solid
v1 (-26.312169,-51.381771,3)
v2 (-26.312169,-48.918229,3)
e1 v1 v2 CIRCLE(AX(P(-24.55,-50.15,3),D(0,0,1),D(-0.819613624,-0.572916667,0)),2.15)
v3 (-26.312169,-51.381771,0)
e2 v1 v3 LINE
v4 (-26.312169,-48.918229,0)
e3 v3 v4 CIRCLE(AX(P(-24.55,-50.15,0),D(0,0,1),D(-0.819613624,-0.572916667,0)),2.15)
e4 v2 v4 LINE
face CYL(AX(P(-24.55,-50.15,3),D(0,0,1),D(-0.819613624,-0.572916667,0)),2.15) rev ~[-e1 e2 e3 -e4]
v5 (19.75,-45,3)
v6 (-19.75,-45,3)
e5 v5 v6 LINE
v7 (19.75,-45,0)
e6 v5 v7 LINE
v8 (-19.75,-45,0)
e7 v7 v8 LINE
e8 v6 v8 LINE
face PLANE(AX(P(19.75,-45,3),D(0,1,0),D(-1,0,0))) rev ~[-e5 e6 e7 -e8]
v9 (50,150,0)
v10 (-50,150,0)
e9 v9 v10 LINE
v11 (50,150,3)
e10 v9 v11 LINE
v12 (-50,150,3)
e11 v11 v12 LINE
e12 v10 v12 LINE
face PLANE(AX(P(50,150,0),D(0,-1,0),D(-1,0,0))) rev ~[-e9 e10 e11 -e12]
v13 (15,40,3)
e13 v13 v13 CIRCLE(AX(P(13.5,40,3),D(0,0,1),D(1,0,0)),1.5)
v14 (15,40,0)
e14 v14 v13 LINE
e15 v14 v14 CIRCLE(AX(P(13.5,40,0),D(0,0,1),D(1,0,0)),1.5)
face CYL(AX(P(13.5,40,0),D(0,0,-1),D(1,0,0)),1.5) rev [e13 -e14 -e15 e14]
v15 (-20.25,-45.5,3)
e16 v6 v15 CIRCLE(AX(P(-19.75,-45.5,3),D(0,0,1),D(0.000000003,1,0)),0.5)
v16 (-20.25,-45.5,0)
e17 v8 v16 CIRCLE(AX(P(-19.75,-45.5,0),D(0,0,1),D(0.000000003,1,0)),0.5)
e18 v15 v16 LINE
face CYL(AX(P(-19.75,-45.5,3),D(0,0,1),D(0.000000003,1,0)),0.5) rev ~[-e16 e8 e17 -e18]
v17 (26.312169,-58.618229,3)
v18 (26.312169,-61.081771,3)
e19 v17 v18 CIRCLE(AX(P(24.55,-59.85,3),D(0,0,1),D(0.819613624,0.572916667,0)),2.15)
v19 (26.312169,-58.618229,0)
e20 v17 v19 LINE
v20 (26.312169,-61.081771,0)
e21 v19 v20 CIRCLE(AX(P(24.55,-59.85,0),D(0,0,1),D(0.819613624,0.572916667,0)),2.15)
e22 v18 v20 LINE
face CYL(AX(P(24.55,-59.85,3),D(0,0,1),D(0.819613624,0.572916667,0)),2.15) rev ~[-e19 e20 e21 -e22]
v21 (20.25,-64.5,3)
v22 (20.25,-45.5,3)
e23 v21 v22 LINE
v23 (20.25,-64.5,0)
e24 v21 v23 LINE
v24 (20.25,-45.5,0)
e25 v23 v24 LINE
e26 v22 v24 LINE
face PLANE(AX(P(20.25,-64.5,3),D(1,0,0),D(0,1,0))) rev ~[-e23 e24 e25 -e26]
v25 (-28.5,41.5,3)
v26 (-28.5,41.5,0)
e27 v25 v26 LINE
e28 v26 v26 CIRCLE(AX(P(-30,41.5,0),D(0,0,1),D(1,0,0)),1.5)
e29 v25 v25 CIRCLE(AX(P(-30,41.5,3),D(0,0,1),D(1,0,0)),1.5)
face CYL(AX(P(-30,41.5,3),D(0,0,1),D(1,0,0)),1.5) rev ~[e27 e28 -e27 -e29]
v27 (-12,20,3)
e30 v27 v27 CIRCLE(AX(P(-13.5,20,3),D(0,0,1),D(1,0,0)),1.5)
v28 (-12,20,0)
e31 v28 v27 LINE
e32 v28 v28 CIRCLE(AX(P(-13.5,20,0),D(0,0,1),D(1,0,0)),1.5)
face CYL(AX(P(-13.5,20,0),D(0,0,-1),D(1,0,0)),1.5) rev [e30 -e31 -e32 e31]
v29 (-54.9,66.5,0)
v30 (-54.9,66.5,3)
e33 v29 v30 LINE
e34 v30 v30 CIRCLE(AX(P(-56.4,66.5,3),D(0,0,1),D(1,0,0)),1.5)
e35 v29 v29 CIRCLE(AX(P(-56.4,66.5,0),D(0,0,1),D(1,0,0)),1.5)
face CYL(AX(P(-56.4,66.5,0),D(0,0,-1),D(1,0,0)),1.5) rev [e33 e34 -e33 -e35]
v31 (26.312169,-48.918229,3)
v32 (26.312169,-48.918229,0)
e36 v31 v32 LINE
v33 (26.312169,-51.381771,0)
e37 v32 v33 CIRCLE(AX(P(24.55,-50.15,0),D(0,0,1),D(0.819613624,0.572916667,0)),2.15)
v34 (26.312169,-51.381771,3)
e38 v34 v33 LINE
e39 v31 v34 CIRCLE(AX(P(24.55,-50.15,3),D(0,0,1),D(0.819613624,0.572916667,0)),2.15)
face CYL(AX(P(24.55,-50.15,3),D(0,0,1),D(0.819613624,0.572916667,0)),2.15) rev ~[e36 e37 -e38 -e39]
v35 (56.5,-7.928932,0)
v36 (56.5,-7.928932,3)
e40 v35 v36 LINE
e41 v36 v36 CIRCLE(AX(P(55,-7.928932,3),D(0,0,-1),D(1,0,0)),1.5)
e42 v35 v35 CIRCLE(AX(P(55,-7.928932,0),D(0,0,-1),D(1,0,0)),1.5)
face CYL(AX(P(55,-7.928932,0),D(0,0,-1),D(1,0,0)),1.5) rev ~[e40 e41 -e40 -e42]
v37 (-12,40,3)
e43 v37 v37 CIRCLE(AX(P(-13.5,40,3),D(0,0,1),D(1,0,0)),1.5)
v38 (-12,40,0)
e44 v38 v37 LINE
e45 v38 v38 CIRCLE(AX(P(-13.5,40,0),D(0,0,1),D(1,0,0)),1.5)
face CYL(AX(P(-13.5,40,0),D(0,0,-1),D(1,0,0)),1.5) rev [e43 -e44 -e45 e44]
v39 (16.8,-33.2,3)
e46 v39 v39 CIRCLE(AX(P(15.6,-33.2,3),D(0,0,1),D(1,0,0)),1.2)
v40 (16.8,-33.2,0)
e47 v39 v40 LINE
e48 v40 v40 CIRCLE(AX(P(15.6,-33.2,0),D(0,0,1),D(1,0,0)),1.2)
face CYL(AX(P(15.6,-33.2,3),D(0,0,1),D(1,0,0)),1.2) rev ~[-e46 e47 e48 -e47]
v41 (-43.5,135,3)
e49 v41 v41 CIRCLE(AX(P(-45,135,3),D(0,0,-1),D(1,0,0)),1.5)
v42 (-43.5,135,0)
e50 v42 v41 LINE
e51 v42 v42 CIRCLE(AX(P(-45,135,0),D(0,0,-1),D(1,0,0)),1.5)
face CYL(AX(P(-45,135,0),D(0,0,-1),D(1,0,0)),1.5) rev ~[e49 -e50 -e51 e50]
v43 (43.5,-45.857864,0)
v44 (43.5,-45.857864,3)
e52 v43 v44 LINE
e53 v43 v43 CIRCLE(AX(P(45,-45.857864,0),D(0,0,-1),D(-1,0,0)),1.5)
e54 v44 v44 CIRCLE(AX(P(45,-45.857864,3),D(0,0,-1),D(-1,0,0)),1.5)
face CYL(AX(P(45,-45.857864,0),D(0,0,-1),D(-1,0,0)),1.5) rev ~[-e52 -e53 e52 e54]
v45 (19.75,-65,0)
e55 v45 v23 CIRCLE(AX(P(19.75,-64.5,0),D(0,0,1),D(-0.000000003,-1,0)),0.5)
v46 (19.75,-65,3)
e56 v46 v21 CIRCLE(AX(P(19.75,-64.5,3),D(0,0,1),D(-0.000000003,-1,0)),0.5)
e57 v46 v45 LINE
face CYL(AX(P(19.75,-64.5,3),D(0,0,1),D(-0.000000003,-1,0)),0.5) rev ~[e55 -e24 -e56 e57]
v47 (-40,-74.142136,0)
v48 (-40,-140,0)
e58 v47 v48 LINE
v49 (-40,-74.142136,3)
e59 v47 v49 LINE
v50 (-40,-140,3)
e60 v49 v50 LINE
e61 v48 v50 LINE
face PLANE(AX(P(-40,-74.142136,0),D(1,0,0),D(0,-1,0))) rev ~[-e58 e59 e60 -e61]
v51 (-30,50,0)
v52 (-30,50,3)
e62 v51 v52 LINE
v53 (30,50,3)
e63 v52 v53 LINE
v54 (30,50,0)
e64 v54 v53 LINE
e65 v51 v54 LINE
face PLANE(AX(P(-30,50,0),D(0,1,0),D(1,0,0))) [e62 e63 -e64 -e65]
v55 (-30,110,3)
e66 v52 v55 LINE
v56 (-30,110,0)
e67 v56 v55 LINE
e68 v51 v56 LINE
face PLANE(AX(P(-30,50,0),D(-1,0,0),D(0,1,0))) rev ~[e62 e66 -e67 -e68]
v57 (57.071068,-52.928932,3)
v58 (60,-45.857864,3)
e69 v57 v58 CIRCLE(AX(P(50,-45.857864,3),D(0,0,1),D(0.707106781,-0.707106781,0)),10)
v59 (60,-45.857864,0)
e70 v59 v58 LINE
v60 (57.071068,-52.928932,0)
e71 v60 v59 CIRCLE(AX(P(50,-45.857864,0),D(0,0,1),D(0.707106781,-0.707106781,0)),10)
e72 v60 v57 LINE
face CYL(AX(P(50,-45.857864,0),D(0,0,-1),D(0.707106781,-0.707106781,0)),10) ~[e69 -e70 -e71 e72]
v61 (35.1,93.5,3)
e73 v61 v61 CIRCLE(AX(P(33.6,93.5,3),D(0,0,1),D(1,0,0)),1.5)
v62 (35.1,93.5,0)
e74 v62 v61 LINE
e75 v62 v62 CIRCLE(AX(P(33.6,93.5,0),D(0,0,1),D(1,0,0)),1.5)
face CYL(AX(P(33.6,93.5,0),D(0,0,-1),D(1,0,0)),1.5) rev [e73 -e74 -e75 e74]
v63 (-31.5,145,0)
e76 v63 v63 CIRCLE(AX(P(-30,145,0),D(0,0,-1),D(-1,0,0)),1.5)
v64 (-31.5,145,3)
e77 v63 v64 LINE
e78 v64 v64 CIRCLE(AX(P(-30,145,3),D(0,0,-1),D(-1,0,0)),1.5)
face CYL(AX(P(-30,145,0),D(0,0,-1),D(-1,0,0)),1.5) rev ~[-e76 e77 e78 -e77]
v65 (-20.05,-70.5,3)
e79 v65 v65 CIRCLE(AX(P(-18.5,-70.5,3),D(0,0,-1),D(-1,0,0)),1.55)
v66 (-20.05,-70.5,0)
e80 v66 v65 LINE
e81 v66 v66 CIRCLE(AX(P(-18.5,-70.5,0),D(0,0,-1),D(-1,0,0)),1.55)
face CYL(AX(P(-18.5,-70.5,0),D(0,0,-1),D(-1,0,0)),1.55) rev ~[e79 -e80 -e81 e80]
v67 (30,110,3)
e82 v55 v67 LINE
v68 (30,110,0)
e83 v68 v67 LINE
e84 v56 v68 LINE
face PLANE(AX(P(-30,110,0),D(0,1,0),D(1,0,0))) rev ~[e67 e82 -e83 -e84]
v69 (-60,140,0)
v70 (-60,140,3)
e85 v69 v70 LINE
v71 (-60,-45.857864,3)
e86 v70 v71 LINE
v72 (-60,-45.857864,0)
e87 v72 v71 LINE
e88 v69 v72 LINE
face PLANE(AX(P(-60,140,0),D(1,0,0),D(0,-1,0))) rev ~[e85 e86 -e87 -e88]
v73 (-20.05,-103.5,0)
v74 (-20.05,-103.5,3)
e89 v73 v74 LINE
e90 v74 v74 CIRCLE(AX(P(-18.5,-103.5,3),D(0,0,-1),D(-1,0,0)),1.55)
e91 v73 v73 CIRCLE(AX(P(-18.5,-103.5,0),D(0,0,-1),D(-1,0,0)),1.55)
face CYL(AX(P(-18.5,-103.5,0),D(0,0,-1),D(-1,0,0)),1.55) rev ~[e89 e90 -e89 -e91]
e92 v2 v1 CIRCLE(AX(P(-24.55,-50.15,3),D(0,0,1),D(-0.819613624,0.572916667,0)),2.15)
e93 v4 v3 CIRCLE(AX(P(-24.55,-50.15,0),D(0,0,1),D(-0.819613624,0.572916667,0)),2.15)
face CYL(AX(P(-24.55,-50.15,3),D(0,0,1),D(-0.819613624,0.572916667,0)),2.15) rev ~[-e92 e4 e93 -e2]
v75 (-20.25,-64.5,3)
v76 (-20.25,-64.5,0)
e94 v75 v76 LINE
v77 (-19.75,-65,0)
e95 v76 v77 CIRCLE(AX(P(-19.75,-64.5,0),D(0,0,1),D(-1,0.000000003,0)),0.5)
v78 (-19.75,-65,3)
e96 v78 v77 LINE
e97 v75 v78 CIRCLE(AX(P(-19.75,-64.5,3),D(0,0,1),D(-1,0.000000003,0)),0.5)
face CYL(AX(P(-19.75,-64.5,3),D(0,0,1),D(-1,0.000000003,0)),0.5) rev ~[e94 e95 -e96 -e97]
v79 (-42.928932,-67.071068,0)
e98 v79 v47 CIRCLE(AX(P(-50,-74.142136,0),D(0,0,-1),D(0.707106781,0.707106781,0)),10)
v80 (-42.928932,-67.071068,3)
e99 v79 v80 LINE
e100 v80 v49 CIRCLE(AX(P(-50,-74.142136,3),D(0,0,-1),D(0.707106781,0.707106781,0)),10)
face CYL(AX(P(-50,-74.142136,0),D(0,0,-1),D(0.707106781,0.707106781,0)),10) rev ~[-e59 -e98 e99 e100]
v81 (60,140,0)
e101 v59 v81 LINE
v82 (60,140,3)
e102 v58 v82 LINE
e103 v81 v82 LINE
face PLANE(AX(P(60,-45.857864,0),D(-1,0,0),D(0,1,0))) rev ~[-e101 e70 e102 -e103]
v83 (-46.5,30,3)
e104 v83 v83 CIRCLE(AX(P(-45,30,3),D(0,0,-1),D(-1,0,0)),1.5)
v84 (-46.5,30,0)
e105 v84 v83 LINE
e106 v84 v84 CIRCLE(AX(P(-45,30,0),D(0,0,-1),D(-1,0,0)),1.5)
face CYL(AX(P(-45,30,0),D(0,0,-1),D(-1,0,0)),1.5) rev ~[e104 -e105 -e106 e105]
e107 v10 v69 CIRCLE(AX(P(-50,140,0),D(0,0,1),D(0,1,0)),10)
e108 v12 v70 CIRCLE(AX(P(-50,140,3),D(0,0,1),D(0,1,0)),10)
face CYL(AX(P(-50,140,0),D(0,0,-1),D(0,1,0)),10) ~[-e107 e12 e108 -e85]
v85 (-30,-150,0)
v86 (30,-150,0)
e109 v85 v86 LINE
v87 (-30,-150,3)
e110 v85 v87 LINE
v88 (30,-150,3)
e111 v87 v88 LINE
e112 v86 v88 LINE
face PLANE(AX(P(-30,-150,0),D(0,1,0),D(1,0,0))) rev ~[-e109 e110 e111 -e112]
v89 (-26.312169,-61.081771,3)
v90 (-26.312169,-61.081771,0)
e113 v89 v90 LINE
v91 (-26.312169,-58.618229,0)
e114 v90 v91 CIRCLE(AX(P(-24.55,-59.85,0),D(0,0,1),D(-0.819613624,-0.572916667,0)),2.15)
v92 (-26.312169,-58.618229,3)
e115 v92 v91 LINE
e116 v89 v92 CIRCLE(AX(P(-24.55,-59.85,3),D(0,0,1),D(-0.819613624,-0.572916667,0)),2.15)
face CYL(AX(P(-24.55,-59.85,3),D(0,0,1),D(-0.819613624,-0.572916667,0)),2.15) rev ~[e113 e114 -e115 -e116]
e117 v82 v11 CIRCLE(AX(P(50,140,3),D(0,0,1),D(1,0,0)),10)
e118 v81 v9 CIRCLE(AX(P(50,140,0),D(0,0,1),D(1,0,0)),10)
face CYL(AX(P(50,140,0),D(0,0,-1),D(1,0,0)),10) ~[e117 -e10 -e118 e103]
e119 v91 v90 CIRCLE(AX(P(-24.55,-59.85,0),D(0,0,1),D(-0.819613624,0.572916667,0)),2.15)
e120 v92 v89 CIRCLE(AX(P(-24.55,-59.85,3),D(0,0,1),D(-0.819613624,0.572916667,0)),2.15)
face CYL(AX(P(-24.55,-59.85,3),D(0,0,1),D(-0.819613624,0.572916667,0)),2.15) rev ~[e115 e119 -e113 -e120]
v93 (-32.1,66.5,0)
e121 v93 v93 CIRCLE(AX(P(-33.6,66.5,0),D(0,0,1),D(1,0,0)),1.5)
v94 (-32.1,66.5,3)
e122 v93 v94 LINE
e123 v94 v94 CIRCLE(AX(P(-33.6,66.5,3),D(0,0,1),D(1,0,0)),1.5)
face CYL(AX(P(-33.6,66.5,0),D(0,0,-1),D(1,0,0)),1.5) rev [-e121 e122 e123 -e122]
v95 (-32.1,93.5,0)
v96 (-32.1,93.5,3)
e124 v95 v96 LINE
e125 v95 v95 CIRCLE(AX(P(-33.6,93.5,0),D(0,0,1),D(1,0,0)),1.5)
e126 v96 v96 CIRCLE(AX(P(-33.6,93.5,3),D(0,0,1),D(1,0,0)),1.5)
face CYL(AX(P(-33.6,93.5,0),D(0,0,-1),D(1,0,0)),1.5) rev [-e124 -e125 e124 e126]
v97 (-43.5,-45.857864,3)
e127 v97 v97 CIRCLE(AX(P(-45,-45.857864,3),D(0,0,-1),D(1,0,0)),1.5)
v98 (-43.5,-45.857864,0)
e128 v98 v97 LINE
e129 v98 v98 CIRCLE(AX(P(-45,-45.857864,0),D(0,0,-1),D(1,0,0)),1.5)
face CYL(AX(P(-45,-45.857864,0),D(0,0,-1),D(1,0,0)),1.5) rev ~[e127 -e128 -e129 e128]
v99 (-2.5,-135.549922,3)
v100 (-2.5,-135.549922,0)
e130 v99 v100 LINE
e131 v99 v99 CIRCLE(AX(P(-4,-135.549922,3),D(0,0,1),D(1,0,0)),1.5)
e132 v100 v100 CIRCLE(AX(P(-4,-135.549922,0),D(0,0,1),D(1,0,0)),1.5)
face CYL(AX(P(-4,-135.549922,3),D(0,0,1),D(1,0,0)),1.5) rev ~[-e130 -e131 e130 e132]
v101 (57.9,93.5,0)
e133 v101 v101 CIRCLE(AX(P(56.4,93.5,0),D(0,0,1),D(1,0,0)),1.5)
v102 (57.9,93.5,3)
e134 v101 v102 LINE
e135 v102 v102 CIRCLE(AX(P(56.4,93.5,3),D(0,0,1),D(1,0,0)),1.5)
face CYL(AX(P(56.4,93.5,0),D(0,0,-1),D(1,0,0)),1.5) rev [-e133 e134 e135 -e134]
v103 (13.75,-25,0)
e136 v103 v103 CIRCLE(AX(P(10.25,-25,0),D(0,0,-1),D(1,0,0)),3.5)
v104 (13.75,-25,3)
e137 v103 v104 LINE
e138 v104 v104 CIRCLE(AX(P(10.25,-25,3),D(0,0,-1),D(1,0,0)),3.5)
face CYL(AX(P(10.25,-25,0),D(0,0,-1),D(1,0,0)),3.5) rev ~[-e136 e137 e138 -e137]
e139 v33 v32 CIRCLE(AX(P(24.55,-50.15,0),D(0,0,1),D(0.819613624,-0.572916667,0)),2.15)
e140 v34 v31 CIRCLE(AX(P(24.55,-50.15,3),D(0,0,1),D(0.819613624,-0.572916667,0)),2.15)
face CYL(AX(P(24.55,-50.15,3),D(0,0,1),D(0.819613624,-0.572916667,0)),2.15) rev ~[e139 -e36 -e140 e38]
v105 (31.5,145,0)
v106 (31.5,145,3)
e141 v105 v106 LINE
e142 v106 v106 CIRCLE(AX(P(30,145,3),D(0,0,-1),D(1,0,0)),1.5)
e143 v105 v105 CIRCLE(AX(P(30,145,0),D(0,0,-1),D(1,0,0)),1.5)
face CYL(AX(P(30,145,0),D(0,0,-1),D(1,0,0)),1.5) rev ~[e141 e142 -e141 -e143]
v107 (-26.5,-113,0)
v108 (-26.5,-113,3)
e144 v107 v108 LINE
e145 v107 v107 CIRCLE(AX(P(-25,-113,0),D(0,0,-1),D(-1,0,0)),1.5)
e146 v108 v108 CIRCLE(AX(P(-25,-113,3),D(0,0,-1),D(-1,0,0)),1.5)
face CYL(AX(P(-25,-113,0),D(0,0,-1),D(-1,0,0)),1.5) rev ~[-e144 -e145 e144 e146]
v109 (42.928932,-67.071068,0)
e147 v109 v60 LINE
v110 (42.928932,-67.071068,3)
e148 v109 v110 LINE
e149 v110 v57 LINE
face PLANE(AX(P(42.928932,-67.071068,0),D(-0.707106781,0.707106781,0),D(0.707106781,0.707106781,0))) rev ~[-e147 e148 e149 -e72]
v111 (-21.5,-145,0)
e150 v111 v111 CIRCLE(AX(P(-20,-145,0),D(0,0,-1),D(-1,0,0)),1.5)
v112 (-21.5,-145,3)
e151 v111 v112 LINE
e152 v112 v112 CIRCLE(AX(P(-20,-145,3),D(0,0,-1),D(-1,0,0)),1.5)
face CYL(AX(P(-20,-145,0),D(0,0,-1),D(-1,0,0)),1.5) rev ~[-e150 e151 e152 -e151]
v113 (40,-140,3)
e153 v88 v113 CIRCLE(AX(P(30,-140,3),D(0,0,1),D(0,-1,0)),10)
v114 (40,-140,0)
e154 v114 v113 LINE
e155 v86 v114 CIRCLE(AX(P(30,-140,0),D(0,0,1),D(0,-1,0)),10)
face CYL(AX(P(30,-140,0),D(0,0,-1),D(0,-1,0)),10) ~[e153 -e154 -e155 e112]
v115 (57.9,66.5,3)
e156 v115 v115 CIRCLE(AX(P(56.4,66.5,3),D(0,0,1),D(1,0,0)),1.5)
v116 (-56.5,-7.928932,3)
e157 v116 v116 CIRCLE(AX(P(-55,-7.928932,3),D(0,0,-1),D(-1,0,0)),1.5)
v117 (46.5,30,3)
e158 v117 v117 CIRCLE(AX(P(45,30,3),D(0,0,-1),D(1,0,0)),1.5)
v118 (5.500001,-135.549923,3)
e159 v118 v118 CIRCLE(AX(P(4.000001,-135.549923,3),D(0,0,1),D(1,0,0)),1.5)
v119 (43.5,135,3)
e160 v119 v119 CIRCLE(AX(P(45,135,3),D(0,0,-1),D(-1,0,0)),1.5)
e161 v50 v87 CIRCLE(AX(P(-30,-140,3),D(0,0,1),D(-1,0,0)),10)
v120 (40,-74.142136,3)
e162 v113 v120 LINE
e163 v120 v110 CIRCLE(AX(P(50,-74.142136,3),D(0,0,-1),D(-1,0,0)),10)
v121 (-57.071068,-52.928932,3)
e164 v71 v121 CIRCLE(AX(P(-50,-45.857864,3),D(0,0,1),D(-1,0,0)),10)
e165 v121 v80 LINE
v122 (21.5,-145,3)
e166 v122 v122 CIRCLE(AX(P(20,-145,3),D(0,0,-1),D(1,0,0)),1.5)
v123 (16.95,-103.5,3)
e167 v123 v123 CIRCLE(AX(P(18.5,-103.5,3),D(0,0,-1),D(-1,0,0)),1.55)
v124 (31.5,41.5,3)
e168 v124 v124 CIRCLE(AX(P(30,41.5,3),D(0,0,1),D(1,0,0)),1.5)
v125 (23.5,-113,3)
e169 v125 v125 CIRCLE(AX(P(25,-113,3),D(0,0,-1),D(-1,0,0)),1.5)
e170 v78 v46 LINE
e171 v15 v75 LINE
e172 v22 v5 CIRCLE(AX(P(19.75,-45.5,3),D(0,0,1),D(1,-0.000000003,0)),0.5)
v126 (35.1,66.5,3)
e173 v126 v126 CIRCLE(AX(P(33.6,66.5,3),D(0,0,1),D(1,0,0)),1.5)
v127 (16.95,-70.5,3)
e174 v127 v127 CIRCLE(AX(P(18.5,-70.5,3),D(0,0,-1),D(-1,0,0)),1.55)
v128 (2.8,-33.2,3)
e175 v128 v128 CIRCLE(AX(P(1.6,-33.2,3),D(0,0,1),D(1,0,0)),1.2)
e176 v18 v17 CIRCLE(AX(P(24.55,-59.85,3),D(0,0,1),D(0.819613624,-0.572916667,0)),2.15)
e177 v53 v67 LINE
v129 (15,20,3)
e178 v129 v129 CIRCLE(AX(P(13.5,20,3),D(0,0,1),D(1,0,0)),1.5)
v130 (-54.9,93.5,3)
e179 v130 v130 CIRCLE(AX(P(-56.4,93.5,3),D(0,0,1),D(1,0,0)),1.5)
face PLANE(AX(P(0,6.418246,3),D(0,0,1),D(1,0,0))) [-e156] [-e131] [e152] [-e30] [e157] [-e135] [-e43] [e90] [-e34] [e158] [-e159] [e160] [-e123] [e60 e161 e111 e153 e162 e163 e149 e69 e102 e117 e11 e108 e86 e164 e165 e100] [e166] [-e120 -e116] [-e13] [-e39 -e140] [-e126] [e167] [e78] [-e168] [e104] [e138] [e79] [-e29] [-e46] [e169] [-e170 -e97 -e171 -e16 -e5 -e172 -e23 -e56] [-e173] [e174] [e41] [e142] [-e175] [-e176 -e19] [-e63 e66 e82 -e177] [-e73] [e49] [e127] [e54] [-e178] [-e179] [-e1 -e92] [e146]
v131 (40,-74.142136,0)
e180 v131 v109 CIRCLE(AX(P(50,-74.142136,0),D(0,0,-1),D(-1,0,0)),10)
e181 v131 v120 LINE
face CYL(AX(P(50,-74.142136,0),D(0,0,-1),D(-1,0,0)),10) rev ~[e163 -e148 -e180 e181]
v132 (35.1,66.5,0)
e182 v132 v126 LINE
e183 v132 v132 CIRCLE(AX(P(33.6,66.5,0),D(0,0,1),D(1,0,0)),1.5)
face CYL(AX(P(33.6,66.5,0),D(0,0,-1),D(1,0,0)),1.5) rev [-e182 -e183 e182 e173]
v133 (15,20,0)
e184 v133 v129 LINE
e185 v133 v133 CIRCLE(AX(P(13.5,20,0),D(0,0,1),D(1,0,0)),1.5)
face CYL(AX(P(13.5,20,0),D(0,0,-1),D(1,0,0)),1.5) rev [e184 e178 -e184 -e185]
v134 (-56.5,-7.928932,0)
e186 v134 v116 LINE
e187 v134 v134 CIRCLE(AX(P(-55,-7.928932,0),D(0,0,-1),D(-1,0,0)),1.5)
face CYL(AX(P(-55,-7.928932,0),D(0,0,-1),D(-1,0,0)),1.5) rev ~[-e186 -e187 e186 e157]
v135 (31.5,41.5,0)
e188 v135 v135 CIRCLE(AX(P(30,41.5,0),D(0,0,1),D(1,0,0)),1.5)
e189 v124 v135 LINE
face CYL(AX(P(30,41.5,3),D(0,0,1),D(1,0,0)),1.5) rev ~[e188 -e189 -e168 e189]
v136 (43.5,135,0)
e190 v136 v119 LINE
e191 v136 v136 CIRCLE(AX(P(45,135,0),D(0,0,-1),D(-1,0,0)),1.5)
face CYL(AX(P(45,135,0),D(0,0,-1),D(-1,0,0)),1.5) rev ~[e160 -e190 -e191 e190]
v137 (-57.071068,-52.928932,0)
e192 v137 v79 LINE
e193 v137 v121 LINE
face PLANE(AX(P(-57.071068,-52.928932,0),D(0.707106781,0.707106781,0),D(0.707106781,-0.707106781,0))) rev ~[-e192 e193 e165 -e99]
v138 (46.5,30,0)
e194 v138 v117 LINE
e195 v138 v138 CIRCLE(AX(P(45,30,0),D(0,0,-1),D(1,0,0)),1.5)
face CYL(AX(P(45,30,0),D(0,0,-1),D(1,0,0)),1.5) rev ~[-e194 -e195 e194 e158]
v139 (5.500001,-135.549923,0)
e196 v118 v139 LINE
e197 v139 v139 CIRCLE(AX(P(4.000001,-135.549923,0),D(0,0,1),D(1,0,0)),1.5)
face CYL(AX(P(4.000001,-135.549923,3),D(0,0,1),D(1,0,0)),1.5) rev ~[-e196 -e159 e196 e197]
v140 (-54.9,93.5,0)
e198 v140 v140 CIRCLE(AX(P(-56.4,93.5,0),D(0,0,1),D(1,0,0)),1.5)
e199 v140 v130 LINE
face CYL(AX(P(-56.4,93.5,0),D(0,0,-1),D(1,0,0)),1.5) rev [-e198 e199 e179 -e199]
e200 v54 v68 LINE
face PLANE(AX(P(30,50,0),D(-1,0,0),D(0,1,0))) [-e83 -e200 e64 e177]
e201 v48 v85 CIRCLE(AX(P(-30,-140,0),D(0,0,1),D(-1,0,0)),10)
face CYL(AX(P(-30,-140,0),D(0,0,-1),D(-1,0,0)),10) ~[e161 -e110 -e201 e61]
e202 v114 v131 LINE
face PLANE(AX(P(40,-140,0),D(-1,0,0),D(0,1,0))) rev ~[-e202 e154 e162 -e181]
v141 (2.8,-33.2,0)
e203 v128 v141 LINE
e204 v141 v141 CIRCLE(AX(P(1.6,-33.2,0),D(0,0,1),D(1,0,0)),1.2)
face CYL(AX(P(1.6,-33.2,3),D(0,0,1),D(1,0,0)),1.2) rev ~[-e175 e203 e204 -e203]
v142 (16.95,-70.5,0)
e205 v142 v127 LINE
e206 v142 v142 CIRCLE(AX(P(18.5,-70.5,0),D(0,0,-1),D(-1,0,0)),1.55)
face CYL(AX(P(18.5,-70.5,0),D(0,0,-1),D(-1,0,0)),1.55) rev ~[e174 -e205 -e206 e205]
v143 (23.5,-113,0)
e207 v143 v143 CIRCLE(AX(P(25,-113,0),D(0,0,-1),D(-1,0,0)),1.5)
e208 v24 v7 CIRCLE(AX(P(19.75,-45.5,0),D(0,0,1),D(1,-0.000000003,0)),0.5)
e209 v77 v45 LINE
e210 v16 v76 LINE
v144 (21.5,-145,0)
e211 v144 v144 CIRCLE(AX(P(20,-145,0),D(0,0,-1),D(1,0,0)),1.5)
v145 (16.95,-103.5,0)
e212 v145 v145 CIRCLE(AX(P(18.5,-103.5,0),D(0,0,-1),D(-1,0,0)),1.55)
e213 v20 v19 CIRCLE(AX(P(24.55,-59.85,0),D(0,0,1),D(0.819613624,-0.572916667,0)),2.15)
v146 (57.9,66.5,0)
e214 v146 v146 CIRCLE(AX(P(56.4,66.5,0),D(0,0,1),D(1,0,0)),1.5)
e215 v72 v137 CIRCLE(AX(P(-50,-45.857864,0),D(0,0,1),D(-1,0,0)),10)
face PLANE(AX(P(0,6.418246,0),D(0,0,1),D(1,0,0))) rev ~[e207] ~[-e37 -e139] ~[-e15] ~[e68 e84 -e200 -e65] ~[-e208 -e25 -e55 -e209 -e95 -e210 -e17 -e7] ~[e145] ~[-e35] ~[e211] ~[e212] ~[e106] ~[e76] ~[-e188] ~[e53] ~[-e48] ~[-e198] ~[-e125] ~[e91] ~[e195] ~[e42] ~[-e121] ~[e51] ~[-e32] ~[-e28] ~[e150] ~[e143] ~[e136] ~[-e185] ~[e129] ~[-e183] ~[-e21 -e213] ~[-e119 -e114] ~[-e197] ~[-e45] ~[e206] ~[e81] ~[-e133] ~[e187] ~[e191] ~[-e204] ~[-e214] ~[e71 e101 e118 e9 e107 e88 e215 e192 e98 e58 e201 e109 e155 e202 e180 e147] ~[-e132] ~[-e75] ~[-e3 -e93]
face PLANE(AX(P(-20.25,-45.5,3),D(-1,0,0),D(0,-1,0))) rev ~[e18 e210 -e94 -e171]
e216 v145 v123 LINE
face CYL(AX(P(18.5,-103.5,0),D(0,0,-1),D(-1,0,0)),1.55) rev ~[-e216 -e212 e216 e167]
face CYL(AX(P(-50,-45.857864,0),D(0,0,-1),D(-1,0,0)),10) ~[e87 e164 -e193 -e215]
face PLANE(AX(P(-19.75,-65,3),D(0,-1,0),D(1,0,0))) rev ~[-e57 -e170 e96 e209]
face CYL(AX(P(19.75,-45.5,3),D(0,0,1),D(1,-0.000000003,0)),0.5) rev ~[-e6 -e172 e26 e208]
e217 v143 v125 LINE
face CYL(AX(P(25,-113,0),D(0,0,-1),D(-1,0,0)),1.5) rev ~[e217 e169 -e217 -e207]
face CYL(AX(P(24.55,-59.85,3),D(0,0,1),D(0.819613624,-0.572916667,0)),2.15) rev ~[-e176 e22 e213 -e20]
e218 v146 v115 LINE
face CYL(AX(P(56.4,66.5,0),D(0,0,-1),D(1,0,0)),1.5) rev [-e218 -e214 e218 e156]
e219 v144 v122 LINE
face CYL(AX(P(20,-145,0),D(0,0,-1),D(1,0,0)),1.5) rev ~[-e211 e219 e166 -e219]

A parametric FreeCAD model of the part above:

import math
import FreeCAD as App
import Part
import Sketcher

V = App.Vector
Q = App.Units.Quantity


def add_polygon(sketch, points):
    """Adds a closed chain of lines whose ends are joined by coincident constraints."""
    first, n = sketch.GeometryCount, len(points)
    for a, b in zip(points, points[1:] + points[:1]):
        sketch.addGeometry(Part.LineSegment(App.Vector(*a, 0), App.Vector(*b, 0)), False)
    for i in range(n):
        sketch.addConstraint(Sketcher.Constraint("Coincident", first + i, 2, first + (i + 1) % n, 1))

doc = App.newDocument("Part")
params = doc.addObject("Spreadsheet::Sheet", "Params")
for row, (alias, value) in enumerate([
    ("sketch1_diameter", "3 mm"),
    ("sketch1_radius", "10 mm"),
    ("sketch1_width", "60 mm"),
    ("pad1_length", "3 mm"),
    ("sketch2_diameter", "3 mm"),
    ("sketch3_diameter", "3 mm"),
    ("sketch4_radius", "0.5 mm"),
    ("sketch4_height", "19 mm"),
    ("sketch4_width", "39.5 mm"),
    ("pocket3_length", "23 mm"),
    ("sketch5_diameter", "3 mm"),
    ("sketch5_diameter2", "7 mm"),
    ("sketch5_diameter3", "3.1 mm"),
    ("pocket4_length", "10 mm"),
    ("sketch6_diameter", "2.4 mm"),
    ("pocket5_length", "10 mm"),
    ("sketch7_diameter", "3 mm"),
    ("pocket6_length", "10 mm"),
    ("sketch8_diameter", "3 mm"),
    ("pocket7_length", "10 mm"),
    ("sketch9_radius", "2.15 mm"),
    ("pocket8_length", "10 mm"),
], start=1):
    params.set(f"A{row}", alias)
    params.set(f"B{row}", "=" + value)
    params.setAlias(f"B{row}", alias)

body = doc.addObject("PartDesign::Body", "Body")

# Sketch on XY plane
sketch1 = doc.addObject("Sketcher::SketchObject", "Sketch")
body.addObject(sketch1)
sketch1.AttachmentSupport = (doc.XY_Plane, [""])
sketch1.MapMode = "FlatFace"
sketch1.addGeometry(Part.LineSegment(V(-30, -150, 0), V(30, -150, 0)), False)  # 0
sketch1.addGeometry(Part.ArcOfCircle(Part.Circle(V(30, -140, 0), V(0, 0, 1), 10), math.radians(-90), math.radians(0)), False)  # 1
sketch1.addGeometry(Part.LineSegment(V(40, -140, 0), V(40, -74.1, 0)), False)  # 2
sketch1.addGeometry(Part.ArcOfCircle(Part.Circle(V(50, -74.1, 0), V(0, 0, 1), 10), math.radians(135), math.radians(180)), False)  # 3
sketch1.addGeometry(Part.LineSegment(V(42.9, -67.1, 0), V(57.1, -52.9, 0)), False)  # 4
sketch1.addGeometry(Part.ArcOfCircle(Part.Circle(V(50, -45.9, 0), V(0, 0, 1), 10), math.radians(-45), math.radians(0)), False)  # 5
sketch1.addGeometry(Part.LineSegment(V(60, -45.9, 0), V(60, 140, 0)), False)  # 6
sketch1.addGeometry(Part.ArcOfCircle(Part.Circle(V(50, 140, 0), V(0, 0, 1), 10), math.radians(0), math.radians(90)), False)  # 7
sketch1.addGeometry(Part.LineSegment(V(50, 150, 0), V(-50, 150, 0)), False)  # 8
sketch1.addGeometry(Part.ArcOfCircle(Part.Circle(V(-50, 140, 0), V(0, 0, 1), 10), math.radians(90), math.radians(180)), False)  # 9
sketch1.addGeometry(Part.LineSegment(V(-60, 140, 0), V(-60, -45.9, 0)), False)  # 10
sketch1.addGeometry(Part.ArcOfCircle(Part.Circle(V(-50, -45.9, 0), V(0, 0, 1), 10), math.radians(180), math.radians(225)), False)  # 11
sketch1.addGeometry(Part.LineSegment(V(-57.1, -52.9, 0), V(-42.9, -67.1, 0)), False)  # 12
sketch1.addGeometry(Part.ArcOfCircle(Part.Circle(V(-50, -74.1, 0), V(0, 0, 1), 10), math.radians(0), math.radians(45)), False)  # 13
sketch1.addGeometry(Part.LineSegment(V(-40, -74.1, 0), V(-40, -140, 0)), False)  # 14
sketch1.addGeometry(Part.ArcOfCircle(Part.Circle(V(-30, -140, 0), V(0, 0, 1), 10), math.radians(180), math.radians(270)), False)  # 15
sketch1.addGeometry(Part.Circle(V(-13.5, 20, 0), V(0, 0, 1), 1.5), False)  # 16
sketch1.addGeometry(Part.Circle(V(-13.5, 40, 0), V(0, 0, 1), 1.5), False)  # 17
sketch1.addGeometry(Part.Circle(V(13.5, 20, 0), V(0, 0, 1), 1.5), False)  # 18
sketch1.addGeometry(Part.Circle(V(13.5, 40, 0), V(0, 0, 1), 1.5), False)  # 19
sketch1.addGeometry(Part.Circle(V(-56.4, 66.5, 0), V(0, 0, 1), 1.5), False)  # 20
sketch1.addGeometry(Part.Circle(V(-33.6, 66.5, 0), V(0, 0, 1), 1.5), False)  # 21
add_polygon(sketch1, [(30, 50), (-30, 50), (-30, 110), (30, 110)])  # lines 22-25
sketch1.addGeometry(Part.Circle(V(-56.4, 93.5, 0), V(0, 0, 1), 1.5), False)  # 26
sketch1.addGeometry(Part.Circle(V(-33.6, 93.5, 0), V(0, 0, 1), 1.5), False)  # 27
sketch1.addGeometry(Part.Circle(V(33.6, 66.5, 0), V(0, 0, 1), 1.5), False)  # 28
sketch1.addGeometry(Part.Circle(V(56.4, 66.5, 0), V(0, 0, 1), 1.5), False)  # 29
sketch1.addGeometry(Part.Circle(V(33.6, 93.5, 0), V(0, 0, 1), 1.5), False)  # 30
sketch1.addGeometry(Part.Circle(V(56.4, 93.5, 0), V(0, 0, 1), 1.5), False)  # 31
sketch1.addConstraint([
    Sketcher.Constraint("Tangent", 0, 2, 1, 1),
    Sketcher.Constraint("Tangent", 1, 2, 2, 1),
    Sketcher.Constraint("Tangent", 2, 2, 3, 2),
    Sketcher.Constraint("Tangent", 3, 1, 4, 1),
    Sketcher.Constraint("Tangent", 4, 2, 5, 1),
    Sketcher.Constraint("Tangent", 5, 2, 6, 1),
    Sketcher.Constraint("Tangent", 6, 2, 7, 1),
    Sketcher.Constraint("Tangent", 7, 2, 8, 1),
    Sketcher.Constraint("Tangent", 8, 2, 9, 1),
    Sketcher.Constraint("Tangent", 9, 2, 10, 1),
    Sketcher.Constraint("Tangent", 10, 2, 11, 1),
    Sketcher.Constraint("Tangent", 11, 2, 12, 1),
    Sketcher.Constraint("Tangent", 12, 2, 13, 2),
    Sketcher.Constraint("Tangent", 13, 1, 14, 1),
    Sketcher.Constraint("Tangent", 14, 2, 15, 1),
    Sketcher.Constraint("Tangent", 15, 2, 0, 1),
    Sketcher.Constraint("Horizontal", 0),
    Sketcher.Constraint("Vertical", 2),
    Sketcher.Constraint("Vertical", 6),
    Sketcher.Constraint("Horizontal", 8),
    Sketcher.Constraint("Vertical", 10),
    Sketcher.Constraint("Vertical", 14),
    Sketcher.Constraint("Horizontal", 22),
    Sketcher.Constraint("Vertical", 23),
    Sketcher.Constraint("Horizontal", 24),
    Sketcher.Constraint("Vertical", 25),
    Sketcher.Constraint("Equal", 1, 3),
    Sketcher.Constraint("Equal", 3, 5),
    Sketcher.Constraint("Equal", 5, 7),
    Sketcher.Constraint("Equal", 7, 9),
    Sketcher.Constraint("Equal", 9, 11),
    Sketcher.Constraint("Equal", 11, 13),
    Sketcher.Constraint("Equal", 13, 15),
    Sketcher.Constraint("Equal", 16, 17),
    Sketcher.Constraint("Equal", 17, 18),
    Sketcher.Constraint("Equal", 18, 19),
    Sketcher.Constraint("Equal", 19, 20),
    Sketcher.Constraint("Equal", 20, 21),
    Sketcher.Constraint("Equal", 21, 26),
    Sketcher.Constraint("Equal", 26, 27),
    Sketcher.Constraint("Equal", 27, 28),
    Sketcher.Constraint("Equal", 28, 29),
    Sketcher.Constraint("Equal", 29, 30),
    Sketcher.Constraint("Equal", 30, 31),
    Sketcher.Constraint("Symmetric", 5, 3, 11, 3, -2),
    Sketcher.Constraint("Symmetric", 3, 3, 13, 3, -2),
    Sketcher.Constraint("Symmetric", 16, 3, 18, 3, -2),
    Sketcher.Constraint("Symmetric", 17, 3, 19, 3, -2),
    Sketcher.Constraint("Symmetric", 21, 3, 28, 3, -2),
    Sketcher.Constraint("Symmetric", 20, 3, 29, 3, -2),
    Sketcher.Constraint("Symmetric", 27, 3, 30, 3, -2),
    Sketcher.Constraint("Symmetric", 26, 3, 31, 3, -2),
    Sketcher.Constraint("Perpendicular", 4, 12),
    Sketcher.Constraint("Horizontal", 20, 3, 21, 3),
    Sketcher.Constraint("Horizontal", 26, 3, 27, 3),
    Sketcher.Constraint("Vertical", 3, 3, 5, 3),
    Sketcher.Constraint("Vertical", 16, 3, 17, 3),
    Sketcher.Constraint("Vertical", 20, 3, 26, 3),
    Sketcher.Constraint("Vertical", 21, 3, 27, 3),
    Sketcher.Constraint("Vertical", 15, 2, 22, 2),
    Sketcher.Constraint("Vertical", 0, 2, 24, 2),
    Sketcher.Constraint("Equal", 24, 23),
    Sketcher.Constraint("Diameter", 16, Q("3 mm")),
    Sketcher.Constraint("Radius", 1, Q("10 mm")),
    Sketcher.Constraint("DistanceX", 0, 1, 0, 2, Q("60 mm")),
    Sketcher.Constraint("DistanceY", 1, 3, -1, 1, Q("140 mm")),
    Sketcher.Constraint("DistanceY", -1, 1, 7, 3, Q("140 mm")),
    Sketcher.Constraint("DistanceY", -1, 1, 16, 3, Q("20 mm")),
    Sketcher.Constraint("DistanceY", -1, 1, 17, 3, Q("40 mm")),
    Sketcher.Constraint("DistanceY", -1, 1, 22, 2, Q("50 mm")),
    Sketcher.Constraint("DistanceX", 16, 3, 18, 3, Q("27 mm")),
    Sketcher.Constraint("DistanceY", 20, 3, 26, 3, Q("27 mm")),
    Sketcher.Constraint("DistanceX", 20, 3, -1, 1, Q("56.4 mm")),
    Sketcher.Constraint("DistanceY", -1, 1, 20, 3, Q("66.5 mm")),
    Sketcher.Constraint("DistanceX", 21, 3, -1, 1, Q("33.6 mm")),
    Sketcher.Constraint("DistanceY", 2, 1, 2, 2, Q("65.857864 mm")),
])
sketch1.setExpression("Constraints[66]", "Params.sketch1_diameter")
sketch1.setExpression("Constraints[67]", "Params.sketch1_radius")
sketch1.setExpression("Constraints[68]", "Params.sketch1_width")
pad1 = doc.addObject("PartDesign::Pad", "Pad")
body.addObject(pad1)
pad1.Profile = sketch1
pad1.setExpression("Length", "Params.pad1_length")

# Sketch on XY plane
sketch2 = doc.addObject("Sketcher::SketchObject", "Sketch001")
body.addObject(sketch2)
sketch2.AttachmentSupport = (doc.XY_Plane, [""])
sketch2.MapMode = "FlatFace"
sketch2.addGeometry([
    Part.Circle(V(-45, 135, 0), V(0, 0, 1), 1.5),  # 0
    Part.Circle(V(45, 135, 0), V(0, 0, 1), 1.5),  # 1
    Part.Circle(V(45, -45.9, 0), V(0, 0, 1), 1.5),  # 2
    Part.Circle(V(-45, -45.9, 0), V(0, 0, 1), 1.5),  # 3
    Part.Circle(V(-45, 30, 0), V(0, 0, 1), 1.5),  # 4
    Part.Circle(V(45, 30, 0), V(0, 0, 1), 1.5),  # 5
], False)
sketch2.addConstraint([
    Sketcher.Constraint("Equal", 0, 1),
    Sketcher.Constraint("Equal", 1, 2),
    Sketcher.Constraint("Equal", 2, 3),
    Sketcher.Constraint("Equal", 3, 4),
    Sketcher.Constraint("Equal", 4, 5),
    Sketcher.Constraint("Symmetric", 0, 3, 1, 3, -2),
    Sketcher.Constraint("Symmetric", 2, 3, 3, 3, -2),
    Sketcher.Constraint("Symmetric", 4, 3, 5, 3, -2),
    Sketcher.Constraint("Vertical", 1, 3, 2, 3),
    Sketcher.Constraint("Vertical", 3, 3, 4, 3),
    Sketcher.Constraint("Diameter", 0, Q("3 mm")),
    Sketcher.Constraint("DistanceX", 0, 3, -1, 1, Q("45 mm")),
    Sketcher.Constraint("DistanceY", -1, 1, 0, 3, Q("135 mm")),
    Sketcher.Constraint("DistanceY", -1, 1, 4, 3, Q("30 mm")),
    Sketcher.Constraint("DistanceY", 2, 3, -1, 1, Q("45.857864 mm")),
])
sketch2.setExpression("Constraints[10]", "Params.sketch2_diameter")
pocket1 = doc.addObject("PartDesign::Pocket", "Pocket")
body.addObject(pocket1)
pocket1.Profile = sketch2
pocket1.Type = "ThroughAll"
pocket1.Reversed = True

# Sketch on XY plane
sketch3 = doc.addObject("Sketcher::SketchObject", "Sketch002")
body.addObject(sketch3)
sketch3.AttachmentSupport = (doc.XY_Plane, [""])
sketch3.MapMode = "FlatFace"
sketch3.addGeometry([
    Part.Circle(V(-30, 145, 0), V(0, 0, 1), 1.5),  # 0
    Part.Circle(V(30, 145, 0), V(0, 0, 1), 1.5),  # 1
    Part.Circle(V(-20, -145, 0), V(0, 0, 1), 1.5),  # 2
    Part.Circle(V(20, -145, 0), V(0, 0, 1), 1.5),  # 3
    Part.Circle(V(-55, -7.9, 0), V(0, 0, 1), 1.5),  # 4
    Part.Circle(V(55, -7.9, 0), V(0, 0, 1), 1.5),  # 5
], False)
sketch3.addConstraint([
    Sketcher.Constraint("Equal", 0, 1),
    Sketcher.Constraint("Equal", 1, 2),
    Sketcher.Constraint("Equal", 2, 3),
    Sketcher.Constraint("Equal", 3, 4),
    Sketcher.Constraint("Equal", 4, 5),
    Sketcher.Constraint("Symmetric", 0, 3, 1, 3, -2),
    Sketcher.Constraint("Symmetric", 2, 3, 3, 3, -2),
    Sketcher.Constraint("Symmetric", 4, 3, 5, 3, -2),
    Sketcher.Constraint("Diameter", 0, Q("3 mm")),
    Sketcher.Constraint("DistanceX", 0, 3, -1, 1, Q("30 mm")),
    Sketcher.Constraint("DistanceY", -1, 1, 0, 3, Q("145 mm")),
    Sketcher.Constraint("DistanceX", 2, 3, -1, 1, Q("20 mm")),
    Sketcher.Constraint("DistanceY", 2, 3, -1, 1, Q("145 mm")),
    Sketcher.Constraint("DistanceX", 4, 3, -1, 1, Q("55 mm")),
    Sketcher.Constraint("DistanceY", 4, 3, -1, 1, Q("7.928932 mm")),
])
sketch3.setExpression("Constraints[8]", "Params.sketch3_diameter")
pocket2 = doc.addObject("PartDesign::Pocket", "Pocket001")
body.addObject(pocket2)
pocket2.Profile = sketch3
pocket2.Type = "ThroughAll"
pocket2.Reversed = True

# Sketch on XY plane
sketch4 = doc.addObject("Sketcher::SketchObject", "Sketch003")
body.addObject(sketch4)
sketch4.AttachmentSupport = (doc.XY_Plane, [""])
sketch4.MapMode = "FlatFace"
sketch4.AttachmentOffset = App.Placement(V(0, 0, 3), App.Rotation())
sketch4.addGeometry([
    Part.LineSegment(V(20.25, -64.5, 0), V(20.25, -45.5, 0)),  # 0
    Part.ArcOfCircle(Part.Circle(V(19.75, -45.5, 0), V(0, 0, 1), 0.5), math.radians(0), math.radians(90)),  # 1
    Part.LineSegment(V(19.75, -45, 0), V(-19.75, -45, 0)),  # 2
    Part.ArcOfCircle(Part.Circle(V(-19.75, -45.5, 0), V(0, 0, 1), 0.5), math.radians(90), math.radians(180)),  # 3
    Part.LineSegment(V(-20.25, -45.5, 0), V(-20.25, -64.5, 0)),  # 4
    Part.ArcOfCircle(Part.Circle(V(-19.75, -64.5, 0), V(0, 0, 1), 0.5), math.radians(180), math.radians(270)),  # 5
    Part.LineSegment(V(-19.75, -65, 0), V(19.75, -65, 0)),  # 6
    Part.ArcOfCircle(Part.Circle(V(19.75, -64.5, 0), V(0, 0, 1), 0.5), math.radians(-90), math.radians(0)),  # 7
], False)
sketch4.addConstraint([
    Sketcher.Constraint("Tangent", 0, 2, 1, 1),
    Sketcher.Constraint("Tangent", 1, 2, 2, 1),
    Sketcher.Constraint("Tangent", 2, 2, 3, 1),
    Sketcher.Constraint("Tangent", 3, 2, 4, 1),
    Sketcher.Constraint("Tangent", 4, 2, 5, 1),
    Sketcher.Constraint("Tangent", 5, 2, 6, 1),
    Sketcher.Constraint("Tangent", 6, 2, 7, 1),
    Sketcher.Constraint("Tangent", 7, 2, 0, 1),
    Sketcher.Constraint("Vertical", 0),
    Sketcher.Constraint("Horizontal", 2),
    Sketcher.Constraint("Vertical", 4),
    Sketcher.Constraint("Horizontal", 6),
    Sketcher.Constraint("Equal", 1, 3),
    Sketcher.Constraint("Equal", 3, 5),
    Sketcher.Constraint("Equal", 5, 7),
    Sketcher.Constraint("Radius", 1, Q("0.5 mm")),
    Sketcher.Constraint("DistanceY", 0, 1, 0, 2, Q("19 mm")),
    Sketcher.Constraint("DistanceX", 2, 2, 2, 1, Q("39.5 mm")),
    Sketcher.Constraint("DistanceY", 1, 2, -1, 1, Q("45 mm")),
    Sketcher.Constraint("DistanceX", -1, 1, 1, 3, Q("19.75 mm")),
])
sketch4.setExpression("Constraints[15]", "Params.sketch4_radius")
sketch4.setExpression("Constraints[16]", "Params.sketch4_height")
sketch4.setExpression("Constraints[17]", "Params.sketch4_width")
pocket3 = doc.addObject("PartDesign::Pocket", "Pocket002")
body.addObject(pocket3)
pocket3.Profile = sketch4
pocket3.setExpression("Length", "Params.pocket3_length")

# Sketch on XY plane
sketch5 = doc.addObject("Sketcher::SketchObject", "Sketch004")
body.addObject(sketch5)
sketch5.AttachmentSupport = (doc.XY_Plane, [""])
sketch5.MapMode = "FlatFace"
sketch5.addGeometry([
    Part.Circle(V(25, -113, 0), V(0, 0, 1), 1.5),  # 0
    Part.Circle(V(-25, -113, 0), V(0, 0, 1), 1.5),  # 1
    Part.Circle(V(18.5, -70.5, 0), V(0, 0, 1), 1.6),  # 2
    Part.Circle(V(-18.5, -70.5, 0), V(0, 0, 1), 1.6),  # 3
    Part.Circle(V(18.5, -103.5, 0), V(0, 0, 1), 1.6),  # 4
    Part.Circle(V(-18.5, -103.5, 0), V(0, 0, 1), 1.6),  # 5
    Part.Circle(V(10.2, -25, 0), V(0, 0, 1), 3.5),  # 6
], False)
sketch5.addConstraint([
    Sketcher.Constraint("Equal", 0, 1),
    Sketcher.Constraint("Equal", 2, 3),
    Sketcher.Constraint("Equal", 3, 4),
    Sketcher.Constraint("Equal", 4, 5),
    Sketcher.Constraint("Symmetric", 0, 3, 1, 3, -2),
    Sketcher.Constraint("Symmetric", 2, 3, 3, 3, -2),
    Sketcher.Constraint("Symmetric", 4, 3, 5, 3, -2),
    Sketcher.Constraint("Vertical", 2, 3, 4, 3),
    Sketcher.Constraint("Diameter", 0, Q("3 mm")),
    Sketcher.Constraint("Diameter", 6, Q("7 mm")),
    Sketcher.Constraint("Diameter", 2, Q("3.1 mm")),
    Sketcher.Constraint("DistanceX", -1, 1, 0, 3, Q("25 mm")),
    Sketcher.Constraint("DistanceY", 0, 3, -1, 1, Q("113 mm")),
    Sketcher.Constraint("DistanceY", 6, 3, -1, 1, Q("25 mm")),
    Sketcher.Constraint("DistanceX", 3, 3, 2, 3, Q("37 mm")),
    Sketcher.Constraint("DistanceY", 4, 3, 2, 3, Q("33 mm")),
    Sketcher.Constraint("DistanceY", 2, 3, -1, 1, Q("70.5 mm")),
    Sketcher.Constraint("DistanceX", -1, 1, 6, 3, Q("10.25 mm")),
])
sketch5.setExpression("Constraints[8]", "Params.sketch5_diameter")
sketch5.setExpression("Constraints[9]", "Params.sketch5_diameter2")
sketch5.setExpression("Constraints[10]", "Params.sketch5_diameter3")
pocket4 = doc.addObject("PartDesign::Pocket", "Pocket003")
body.addObject(pocket4)
pocket4.Profile = sketch5
pocket4.setExpression("Length", "Params.pocket4_length")
pocket4.Reversed = True

# Sketch on XY plane
sketch6 = doc.addObject("Sketcher::SketchObject", "Sketch005")
body.addObject(sketch6)
sketch6.AttachmentSupport = (doc.XY_Plane, [""])
sketch6.MapMode = "FlatFace"
sketch6.AttachmentOffset = App.Placement(V(0, 0, 3), App.Rotation())
sketch6.addGeometry([
    Part.Circle(V(1.6, -33.2, 0), V(0, 0, 1), 1.2),
    Part.Circle(V(15.6, -33.2, 0), V(0, 0, 1), 1.2),
], False)
sketch6.addConstraint([
    Sketcher.Constraint("Equal", 0, 1),
    Sketcher.Constraint("Horizontal", 0, 3, 1, 3),
    Sketcher.Constraint("Diameter", 0, Q("2.4 mm")),
    Sketcher.Constraint("DistanceX", 0, 3, 1, 3, Q("14 mm")),
    Sketcher.Constraint("DistanceX", -1, 1, 0, 3, Q("1.6 mm")),
    Sketcher.Constraint("DistanceY", 0, 3, -1, 1, Q("33.2 mm")),
])
sketch6.setExpression("Constraints[2]", "Params.sketch6_diameter")
pocket5 = doc.addObject("PartDesign::Pocket", "Pocket004")
body.addObject(pocket5)
pocket5.Profile = sketch6
pocket5.setExpression("Length", "Params.pocket5_length")

# Sketch on XY plane
sketch7 = doc.addObject("Sketcher::SketchObject", "Sketch006")
body.addObject(sketch7)
sketch7.AttachmentSupport = (doc.XY_Plane, [""])
sketch7.MapMode = "FlatFace"
sketch7.AttachmentOffset = App.Placement(V(0, 0, 3), App.Rotation())
sketch7.addGeometry([
    Part.Circle(V(-4, -135.5, 0), V(0, 0, 1), 1.5),
    Part.Circle(V(4, -135.5, 0), V(0, 0, 1), 1.5),
], False)
sketch7.addConstraint([
    Sketcher.Constraint("Equal", 0, 1),
    Sketcher.Constraint("Symmetric", 0, 3, 1, 3, -2),
    Sketcher.Constraint("Diameter", 0, Q("3 mm")),
    Sketcher.Constraint("DistanceX", 0, 3, -1, 1, Q("4 mm")),
    Sketcher.Constraint("DistanceY", 0, 3, -1, 1, Q("135.549922 mm")),
])
sketch7.setExpression("Constraints[2]", "Params.sketch7_diameter")
pocket6 = doc.addObject("PartDesign::Pocket", "Pocket005")
body.addObject(pocket6)
pocket6.Profile = sketch7
pocket6.setExpression("Length", "Params.pocket6_length")

# Sketch on XY plane
sketch8 = doc.addObject("Sketcher::SketchObject", "Sketch007")
body.addObject(sketch8)
sketch8.AttachmentSupport = (doc.XY_Plane, [""])
sketch8.MapMode = "FlatFace"
sketch8.AttachmentOffset = App.Placement(V(0, 0, 3), App.Rotation())
sketch8.addGeometry([
    Part.Circle(V(-30, 41.5, 0), V(0, 0, 1), 1.5),
    Part.Circle(V(30, 41.5, 0), V(0, 0, 1), 1.5),
], False)
sketch8.addConstraint([
    Sketcher.Constraint("Equal", 0, 1),
    Sketcher.Constraint("Symmetric", 0, 3, 1, 3, -2),
    Sketcher.Constraint("Diameter", 0, Q("3 mm")),
    Sketcher.Constraint("DistanceX", 0, 3, -1, 1, Q("30 mm")),
    Sketcher.Constraint("DistanceY", -1, 1, 0, 3, Q("41.5 mm")),
])
sketch8.setExpression("Constraints[2]", "Params.sketch8_diameter")
pocket7 = doc.addObject("PartDesign::Pocket", "Pocket006")
body.addObject(pocket7)
pocket7.Profile = sketch8
pocket7.setExpression("Length", "Params.pocket7_length")

# Sketch on XY plane
sketch9 = doc.addObject("Sketcher::SketchObject", "Sketch008")
body.addObject(sketch9)
sketch9.AttachmentSupport = (doc.XY_Plane, [""])
sketch9.MapMode = "FlatFace"
sketch9.AttachmentOffset = App.Placement(V(0, 0, 3), App.Rotation())
sketch9.addGeometry([
    Part.ArcOfCircle(Part.Circle(V(24.6, -50.1, 0), V(0, 0, 1), 2.1), math.radians(35), math.radians(325)),  # 0
    Part.ArcOfCircle(Part.Circle(V(24.6, -50.1, 0), V(0, 0, 1), 2.1), math.radians(-35), math.radians(35)),  # 1
    Part.ArcOfCircle(Part.Circle(V(24.6, -59.9, 0), V(0, 0, 1), 2.1), math.radians(35), math.radians(325)),  # 2
    Part.ArcOfCircle(Part.Circle(V(24.6, -59.9, 0), V(0, 0, 1), 2.1), math.radians(-35), math.radians(35)),  # 3
    Part.ArcOfCircle(Part.Circle(V(-24.6, -59.9, 0), V(0, 0, 1), 2.1), math.radians(-145), math.radians(145)),  # 4
    Part.ArcOfCircle(Part.Circle(V(-24.6, -59.9, 0), V(0, 0, 1), 2.1), math.radians(145), math.radians(215)),  # 5
    Part.ArcOfCircle(Part.Circle(V(-24.6, -50.1, 0), V(0, 0, 1), 2.1), math.radians(-145), math.radians(145)),  # 6
    Part.ArcOfCircle(Part.Circle(V(-24.6, -50.1, 0), V(0, 0, 1), 2.1), math.radians(145), math.radians(215)),  # 7
], False)
sketch9.addConstraint([
    Sketcher.Constraint("Tangent", 0, 1, 1, 2),
    Sketcher.Constraint("Coincident", 1, 1, 0, 2),
    Sketcher.Constraint("Tangent", 2, 1, 3, 2),
    Sketcher.Constraint("Coincident", 3, 1, 2, 2),
    Sketcher.Constraint("Tangent", 4, 1, 5, 2),
    Sketcher.Constraint("Coincident", 5, 1, 4, 2),
    Sketcher.Constraint("Tangent", 6, 1, 7, 2),
    Sketcher.Constraint("Coincident", 7, 1, 6, 2),
    Sketcher.Constraint("Equal", 1, 2),
    Sketcher.Constraint("Equal", 3, 4),
    Sketcher.Constraint("Equal", 5, 6),
    Sketcher.Constraint("Symmetric", 2, 3, 4, 3, -2),
    Sketcher.Constraint("Symmetric", 0, 3, 6, 3, -2),
    Sketcher.Constraint("Horizontal", 3, 1, 4, 1),
    Sketcher.Constraint("Horizontal", 2, 1, 5, 1),
    Sketcher.Constraint("Horizontal", 1, 1, 6, 1),
    Sketcher.Constraint("Horizontal", 0, 1, 7, 1),
    Sketcher.Constraint("Vertical", 1, 3, 2, 3),
    Sketcher.Constraint("Vertical", 0, 1, 1, 1),
    Sketcher.Constraint("Vertical", 1, 1, 2, 1),
    Sketcher.Constraint("Vertical", 2, 1, 3, 1),
    Sketcher.Constraint("Radius", 0, Q("2.15 mm")),
    Sketcher.Constraint("DistanceY", 2, 3, 0, 3, Q("9.7 mm")),
    Sketcher.Constraint("DistanceX", 4, 3, 2, 3, Q("49.1 mm")),
    Sketcher.Constraint("DistanceY", 0, 3, -1, 1, Q("50.15 mm")),
    Sketcher.Constraint("DistanceX", -1, 1, 0, 1, Q("26.312169 mm")),
])
sketch9.setExpression("Constraints[21]", "Params.sketch9_radius")
pocket8 = doc.addObject("PartDesign::Pocket", "Pocket007")
body.addObject(pocket8)
pocket8.Profile = sketch9
pocket8.setExpression("Length", "Params.pocket8_length")

doc.recompute()
